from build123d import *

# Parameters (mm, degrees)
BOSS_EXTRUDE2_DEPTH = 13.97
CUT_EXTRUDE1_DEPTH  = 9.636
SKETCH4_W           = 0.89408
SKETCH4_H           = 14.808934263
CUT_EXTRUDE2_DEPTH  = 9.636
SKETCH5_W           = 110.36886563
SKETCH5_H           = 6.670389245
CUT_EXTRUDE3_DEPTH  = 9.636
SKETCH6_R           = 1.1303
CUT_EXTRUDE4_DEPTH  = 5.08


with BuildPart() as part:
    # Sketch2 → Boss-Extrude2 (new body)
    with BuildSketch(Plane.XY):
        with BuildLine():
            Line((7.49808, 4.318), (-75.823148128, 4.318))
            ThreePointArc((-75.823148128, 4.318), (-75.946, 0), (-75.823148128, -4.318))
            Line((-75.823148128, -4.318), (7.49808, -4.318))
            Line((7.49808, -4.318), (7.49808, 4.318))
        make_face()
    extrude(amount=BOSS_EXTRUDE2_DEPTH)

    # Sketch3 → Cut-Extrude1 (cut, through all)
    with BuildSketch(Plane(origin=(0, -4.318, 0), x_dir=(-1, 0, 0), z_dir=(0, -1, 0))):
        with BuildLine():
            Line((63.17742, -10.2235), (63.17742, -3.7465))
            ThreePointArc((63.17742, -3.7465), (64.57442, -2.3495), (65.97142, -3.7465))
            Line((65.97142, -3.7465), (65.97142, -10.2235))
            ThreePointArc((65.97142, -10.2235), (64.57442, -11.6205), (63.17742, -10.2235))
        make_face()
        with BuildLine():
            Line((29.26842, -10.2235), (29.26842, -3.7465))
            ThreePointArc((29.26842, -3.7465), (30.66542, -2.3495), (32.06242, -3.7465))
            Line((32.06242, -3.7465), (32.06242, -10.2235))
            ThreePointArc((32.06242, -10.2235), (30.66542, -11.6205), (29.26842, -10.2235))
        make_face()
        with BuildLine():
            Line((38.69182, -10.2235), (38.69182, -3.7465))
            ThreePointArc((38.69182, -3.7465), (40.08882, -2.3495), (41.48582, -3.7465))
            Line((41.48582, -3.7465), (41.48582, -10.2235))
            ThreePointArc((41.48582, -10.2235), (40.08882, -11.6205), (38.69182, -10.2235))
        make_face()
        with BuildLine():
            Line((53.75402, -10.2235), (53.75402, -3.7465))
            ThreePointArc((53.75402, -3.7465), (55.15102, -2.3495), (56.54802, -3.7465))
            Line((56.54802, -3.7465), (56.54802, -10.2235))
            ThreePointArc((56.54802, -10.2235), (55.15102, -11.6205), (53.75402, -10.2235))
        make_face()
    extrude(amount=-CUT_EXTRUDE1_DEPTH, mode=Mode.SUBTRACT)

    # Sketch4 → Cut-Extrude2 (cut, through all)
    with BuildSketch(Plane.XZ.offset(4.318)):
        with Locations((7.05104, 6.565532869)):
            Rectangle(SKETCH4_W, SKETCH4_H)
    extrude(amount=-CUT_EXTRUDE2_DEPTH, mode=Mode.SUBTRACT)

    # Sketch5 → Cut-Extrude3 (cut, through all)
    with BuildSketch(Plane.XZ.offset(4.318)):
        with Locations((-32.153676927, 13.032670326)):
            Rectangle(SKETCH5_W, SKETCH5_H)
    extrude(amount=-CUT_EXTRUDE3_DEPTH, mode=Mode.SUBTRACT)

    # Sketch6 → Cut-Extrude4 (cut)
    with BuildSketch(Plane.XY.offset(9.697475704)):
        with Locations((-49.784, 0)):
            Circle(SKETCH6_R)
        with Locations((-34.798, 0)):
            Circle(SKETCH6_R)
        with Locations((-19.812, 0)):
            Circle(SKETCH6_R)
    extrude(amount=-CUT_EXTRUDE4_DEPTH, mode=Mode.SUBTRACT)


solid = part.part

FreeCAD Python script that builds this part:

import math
import FreeCAD as App
import Part
import Sketcher
from FreeCAD import Vector
Q = App.Units.Quantity

doc = App.newDocument("Part")
body = doc.addObject("PartDesign::Body", "Body")

sketch1 = doc.addObject("Sketcher::SketchObject", "Sketch")
body.addObject(sketch1)
sketch1.AttachmentSupport = (doc.XY_Plane, [""])
sketch1.MapMode = "FlatFace"
sketch1.addGeometry([
    Part.LineSegment(Vector(7.49808, 4.318, 0), Vector(-75.823148, 4.318, 0)),
    Part.ArcOfCircle(Part.Circle(Vector(0, 0, 0), Vector(0, 0, 1), 75.946), math.radians(176.740623), math.radians(183.259377)),
    Part.LineSegment(Vector(-75.823148, -4.318, 0), Vector(7.49808, -4.318, 0)),
    Part.LineSegment(Vector(7.49808, -4.318, 0), Vector(7.49808, 4.318, 0)),
], False)
sketch1.addConstraint([
    Sketcher.Constraint("Coincident", 0, 2, 1, 1),
    Sketcher.Constraint("Coincident", 1, 2, 2, 1),
    Sketcher.Constraint("Coincident", 2, 2, 3, 1),
    Sketcher.Constraint("Coincident", 3, 2, 0, 1),
    Sketcher.Constraint("Horizontal", 0),
    Sketcher.Constraint("Horizontal", 2),
    Sketcher.Constraint("Vertical", 3),
    Sketcher.Constraint("Coincident", 1, 3, -1, 1),
    Sketcher.Constraint("Vertical", 0, 2, 1, 2),
    Sketcher.Constraint("Radius", 1, Q("2.99 in")),
    Sketcher.Constraint("DistanceY", 3, 1, 3, 2, Q("0.34 in")),
    Sketcher.Constraint("DistanceX", -1, 1, 2, 2, Q("0.2952 in")),
])
pad1 = doc.addObject("PartDesign::Pad", "Pad")
body.addObject(pad1)
pad1.Profile = sketch1
pad1.Length = Q("0.55 in")

sketch2 = doc.addObject("Sketcher::SketchObject", "Sketch001")
body.addObject(sketch2)
sketch2.AttachmentSupport = (doc.XZ_Plane, [""])
sketch2.MapMode = "FlatFace"
sketch2.AttachmentOffset = App.Placement(Vector(0, 0, 0.17 * 25.4), App.Rotation())
sketch2.addGeometry([
    Part.LineSegment(Vector(-63.17742, 3.7465, 0), Vector(-63.17742, 10.2235, 0)),
    Part.ArcOfCircle(Part.Circle(Vector(-64.57442, 10.2235, 0), Vector(0, 0, 1), 1.397), math.radians(0), math.radians(180)),
    Part.LineSegment(Vector(-65.97142, 10.2235, 0), Vector(-65.97142, 3.7465, 0)),
    Part.ArcOfCircle(Part.Circle(Vector(-64.57442, 3.7465, 0), Vector(0, 0, 1), 1.397), math.radians(180), math.radians(360)),
    Part.LineSegment(Vector(-29.26842, 3.7465, 0), Vector(-29.26842, 10.2235, 0)),
    Part.ArcOfCircle(Part.Circle(Vector(-30.66542, 10.2235, 0), Vector(0, 0, 1), 1.397), math.radians(0), math.radians(180)),
    Part.LineSegment(Vector(-32.06242, 10.2235, 0), Vector(-32.06242, 3.7465, 0)),
    Part.ArcOfCircle(Part.Circle(Vector(-30.66542, 3.7465, 0), Vector(0, 0, 1), 1.397), math.radians(180), math.radians(360)),
    Part.LineSegment(Vector(-38.69182, 3.7465, 0), Vector(-38.69182, 10.2235, 0)),
    Part.ArcOfCircle(Part.Circle(Vector(-40.08882, 10.2235, 0), Vector(0, 0, 1), 1.397), math.radians(0), math.radians(180)),
    Part.LineSegment(Vector(-41.48582, 10.2235, 0), Vector(-41.48582, 3.7465, 0)),
    Part.ArcOfCircle(Part.Circle(Vector(-40.08882, 3.7465, 0), Vector(0, 0, 1), 1.397), math.radians(180), math.radians(360)),
    Part.LineSegment(Vector(-53.75402, 3.7465, 0), Vector(-53.75402, 10.2235, 0)),
    Part.ArcOfCircle(Part.Circle(Vector(-55.15102, 10.2235, 0), Vector(0, 0, 1), 1.397), math.radians(0), math.radians(180)),
    Part.LineSegment(Vector(-56.54802, 10.2235, 0), Vector(-56.54802, 3.7465, 0)),
    Part.ArcOfCircle(Part.Circle(Vector(-55.15102, 3.7465, 0), Vector(0, 0, 1), 1.397), math.radians(180), math.radians(360)),
], False)
sketch2.addConstraint([
    Sketcher.Constraint("Tangent", 0, 2, 1, 1),
    Sketcher.Constraint("Tangent", 1, 2, 2, 1),
    Sketcher.Constraint("Tangent", 2, 2, 3, 1),
    Sketcher.Constraint("Tangent", 3, 2, 0, 1),
    Sketcher.Constraint("Tangent", 4, 2, 5, 1),
    Sketcher.Constraint("Tangent", 5, 2, 6, 1),
    Sketcher.Constraint("Tangent", 6, 2, 7, 1),
    Sketcher.Constraint("Tangent", 7, 2, 4, 1),
    Sketcher.Constraint("Tangent", 8, 2, 9, 1),
    Sketcher.Constraint("Tangent", 9, 2, 10, 1),
    Sketcher.Constraint("Tangent", 10, 2, 11, 1),
    Sketcher.Constraint("Tangent", 11, 2, 8, 1),
    Sketcher.Constraint("Tangent", 12, 2, 13, 1),
    Sketcher.Constraint("Tangent", 13, 2, 14, 1),
    Sketcher.Constraint("Tangent", 14, 2, 15, 1),
    Sketcher.Constraint("Tangent", 15, 2, 12, 1),
    Sketcher.Constraint("Vertical", 0),
    Sketcher.Constraint("Vertical", 2),
    Sketcher.Constraint("Vertical", 4),
    Sketcher.Constraint("Vertical", 6),
    Sketcher.Constraint("Vertical", 8),
    Sketcher.Constraint("Vertical", 10),
    Sketcher.Constraint("Vertical", 12),
    Sketcher.Constraint("Vertical", 14),
    Sketcher.Constraint("Equal", 3, 5),
    Sketcher.Constraint("Equal", 7, 9),
    Sketcher.Constraint("Equal", 11, 13),
    Sketcher.Constraint("Horizontal", 1, 3, 5, 3),
    Sketcher.Constraint("Horizontal", 3, 3, 7, 3),
    Sketcher.Constraint("Horizontal", 5, 3, 9, 3),
    Sketcher.Constraint("Horizontal", 7, 3, 11, 3),
    Sketcher.Constraint("Horizontal", 9, 3, 13, 3),
    Sketcher.Constraint("Horizontal", 11, 3, 15, 3),
    Sketcher.Constraint("Radius", 1, Q("0.055 in")),
    Sketcher.Constraint("DistanceY", 0, 1, 0, 2, Q("0.255 in")),
    Sketcher.Constraint("DistanceX", 1, 3, 5, 3, Q("1.335 in")),
    Sketcher.Constraint("DistanceX", 9, 3, 5, 3, Q("0.371 in")),
    Sketcher.Constraint("DistanceX", 1, 3, 13, 3, Q("0.371 in")),
    Sketcher.Constraint("DistanceX", 1, 3, -1, 1, Q("2.5423 in")),
    Sketcher.Constraint("DistanceY", -1, 1, 1, 3, Q("0.4025 in")),
])
pocket1 = doc.addObject("PartDesign::Pocket", "Pocket")
body.addObject(pocket1)
pocket1.Profile = sketch2
pocket1.Type = "ThroughAll"

sketch3 = doc.addObject("Sketcher::SketchObject", "Sketch002")
body.addObject(sketch3)
sketch3.AttachmentSupport = (doc.XZ_Plane, [""])
sketch3.MapMode = "FlatFace"
sketch3.AttachmentOffset = App.Placement(Vector(0, 0, 0.17 * 25.4), App.Rotation())
sketch3.addGeometry([
    Part.LineSegment(Vector(6.604, 13.97, 0), Vector(6.604, -0.838934, 0)),
    Part.LineSegment(Vector(6.604, -0.838934, 0), Vector(7.49808, -0.838934, 0)),
    Part.LineSegment(Vector(7.49808, -0.838934, 0), Vector(7.49808, 13.97, 0)),
    Part.LineSegment(Vector(7.49808, 13.97, 0), Vector(6.604, 13.97, 0)),
], False)
sketch3.addConstraint([
    Sketcher.Constraint("Coincident", 0, 2, 1, 1),
    Sketcher.Constraint("Coincident", 1, 2, 2, 1),
    Sketcher.Constraint("Coincident", 2, 2, 3, 1),
    Sketcher.Constraint("Coincident", 3, 2, 0, 1),
    Sketcher.Constraint("Vertical", 0),
    Sketcher.Constraint("Horizontal", 1),
    Sketcher.Constraint("Vertical", 2),
    Sketcher.Constraint("Horizontal", 3),
    Sketcher.Constraint("DistanceX", -1, 1, 0, 2, Q("0.26 in")),
    Sketcher.Constraint("DistanceY", -1, 1, 2, 2, Q("0.55 in")),
    Sketcher.Constraint("DistanceX", 1, 1, 1, 2, Q("0.0352 in")),
    Sketcher.Constraint("DistanceY", 0, 2, 0, 1, 14.808934),
])
pocket2 = doc.addObject("PartDesign::Pocket", "Pocket001")
body.addObject(pocket2)
pocket2.Profile = sketch3
pocket2.Type = "ThroughAll"

sketch4 = doc.addObject("Sketcher::SketchObject", "Sketch003")
body.addObject(sketch4)
sketch4.AttachmentSupport = (doc.XZ_Plane, [""])
sketch4.MapMode = "FlatFace"
sketch4.AttachmentOffset = App.Placement(Vector(0, 0, 0.17 * 25.4), App.Rotation())
sketch4.addGeometry([
    Part.LineSegment(Vector(-87.33811, 16.367865, 0), Vector(-87.33811, 9.697476, 0)),
    Part.LineSegment(Vector(-87.33811, 9.697476, 0), Vector(23.030756, 9.697476, 0)),
    Part.LineSegment(Vector(23.030756, 9.697476, 0), Vector(23.030756, 16.367865, 0)),
    Part.LineSegment(Vector(23.030756, 16.367865, 0), Vector(-87.33811, 16.367865, 0)),
], False)
sketch4.addConstraint([
    Sketcher.Constraint("Coincident", 0, 2, 1, 1),
    Sketcher.Constraint("Coincident", 1, 2, 2, 1),
    Sketcher.Constraint("Coincident", 2, 2, 3, 1),
    Sketcher.Constraint("Coincident", 3, 2, 0, 1),
    Sketcher.Constraint("Vertical", 0),
    Sketcher.Constraint("Horizontal", 1),
    Sketcher.Constraint("Vertical", 2),
    Sketcher.Constraint("Horizontal", 3),
    Sketcher.Constraint("DistanceY", 0, 2, 0, 1, 6.670389),
    Sketcher.Constraint("DistanceX", 1, 1, 1, 2, 110.368866),
    Sketcher.Constraint("DistanceX", 0, 2, -1, 1, 87.33811),
    Sketcher.Constraint("DistanceY", -1, 1, 0, 2, 9.697476),
])
pocket3 = doc.addObject("PartDesign::Pocket", "Pocket002")
body.addObject(pocket3)
pocket3.Profile = sketch4
pocket3.Type = "ThroughAll"

sketch5 = doc.addObject("Sketcher::SketchObject", "Sketch004")
body.addObject(sketch5)
sketch5.AttachmentSupport = (doc.XY_Plane, [""])
sketch5.MapMode = "FlatFace"
sketch5.AttachmentOffset = App.Placement(Vector(0, 0, 9.697476), App.Rotation())
sketch5.addGeometry([
    Part.Circle(Vector(-49.784, 0, 0), Vector(0, 0, 1), 1.1303),
    Part.Circle(Vector(-34.798, 0, 0), Vector(0, 0, 1), 1.1303),
    Part.Circle(Vector(-19.812, 0, 0), Vector(0, 0, 1), 1.1303),
], False)
sketch5.addConstraint([
    Sketcher.Constraint("Equal", 0, 1),
    Sketcher.Constraint("Equal", 1, 2),
    Sketcher.Constraint("PointOnObject", 0, 3, -1),
    Sketcher.Constraint("PointOnObject", 1, 3, -1),
    Sketcher.Constraint("PointOnObject", 2, 3, -1),
    Sketcher.Constraint("Diameter", 0, Q("0.089 in")),
    Sketcher.Constraint("DistanceX", 0, 3, -1, 1, Q("1.96 in")),
    Sketcher.Constraint("DistanceX", 1, 3, -1, 1, Q("1.37 in")),
    Sketcher.Constraint("DistanceX", 2, 3, -1, 1, Q("0.78 in")),
])
pocket4 = doc.addObject("PartDesign::Pocket", "Pocket003")
body.addObject(pocket4)
pocket4.Profile = sketch5
pocket4.Length = Q("0.2 in")

doc.recompute()
